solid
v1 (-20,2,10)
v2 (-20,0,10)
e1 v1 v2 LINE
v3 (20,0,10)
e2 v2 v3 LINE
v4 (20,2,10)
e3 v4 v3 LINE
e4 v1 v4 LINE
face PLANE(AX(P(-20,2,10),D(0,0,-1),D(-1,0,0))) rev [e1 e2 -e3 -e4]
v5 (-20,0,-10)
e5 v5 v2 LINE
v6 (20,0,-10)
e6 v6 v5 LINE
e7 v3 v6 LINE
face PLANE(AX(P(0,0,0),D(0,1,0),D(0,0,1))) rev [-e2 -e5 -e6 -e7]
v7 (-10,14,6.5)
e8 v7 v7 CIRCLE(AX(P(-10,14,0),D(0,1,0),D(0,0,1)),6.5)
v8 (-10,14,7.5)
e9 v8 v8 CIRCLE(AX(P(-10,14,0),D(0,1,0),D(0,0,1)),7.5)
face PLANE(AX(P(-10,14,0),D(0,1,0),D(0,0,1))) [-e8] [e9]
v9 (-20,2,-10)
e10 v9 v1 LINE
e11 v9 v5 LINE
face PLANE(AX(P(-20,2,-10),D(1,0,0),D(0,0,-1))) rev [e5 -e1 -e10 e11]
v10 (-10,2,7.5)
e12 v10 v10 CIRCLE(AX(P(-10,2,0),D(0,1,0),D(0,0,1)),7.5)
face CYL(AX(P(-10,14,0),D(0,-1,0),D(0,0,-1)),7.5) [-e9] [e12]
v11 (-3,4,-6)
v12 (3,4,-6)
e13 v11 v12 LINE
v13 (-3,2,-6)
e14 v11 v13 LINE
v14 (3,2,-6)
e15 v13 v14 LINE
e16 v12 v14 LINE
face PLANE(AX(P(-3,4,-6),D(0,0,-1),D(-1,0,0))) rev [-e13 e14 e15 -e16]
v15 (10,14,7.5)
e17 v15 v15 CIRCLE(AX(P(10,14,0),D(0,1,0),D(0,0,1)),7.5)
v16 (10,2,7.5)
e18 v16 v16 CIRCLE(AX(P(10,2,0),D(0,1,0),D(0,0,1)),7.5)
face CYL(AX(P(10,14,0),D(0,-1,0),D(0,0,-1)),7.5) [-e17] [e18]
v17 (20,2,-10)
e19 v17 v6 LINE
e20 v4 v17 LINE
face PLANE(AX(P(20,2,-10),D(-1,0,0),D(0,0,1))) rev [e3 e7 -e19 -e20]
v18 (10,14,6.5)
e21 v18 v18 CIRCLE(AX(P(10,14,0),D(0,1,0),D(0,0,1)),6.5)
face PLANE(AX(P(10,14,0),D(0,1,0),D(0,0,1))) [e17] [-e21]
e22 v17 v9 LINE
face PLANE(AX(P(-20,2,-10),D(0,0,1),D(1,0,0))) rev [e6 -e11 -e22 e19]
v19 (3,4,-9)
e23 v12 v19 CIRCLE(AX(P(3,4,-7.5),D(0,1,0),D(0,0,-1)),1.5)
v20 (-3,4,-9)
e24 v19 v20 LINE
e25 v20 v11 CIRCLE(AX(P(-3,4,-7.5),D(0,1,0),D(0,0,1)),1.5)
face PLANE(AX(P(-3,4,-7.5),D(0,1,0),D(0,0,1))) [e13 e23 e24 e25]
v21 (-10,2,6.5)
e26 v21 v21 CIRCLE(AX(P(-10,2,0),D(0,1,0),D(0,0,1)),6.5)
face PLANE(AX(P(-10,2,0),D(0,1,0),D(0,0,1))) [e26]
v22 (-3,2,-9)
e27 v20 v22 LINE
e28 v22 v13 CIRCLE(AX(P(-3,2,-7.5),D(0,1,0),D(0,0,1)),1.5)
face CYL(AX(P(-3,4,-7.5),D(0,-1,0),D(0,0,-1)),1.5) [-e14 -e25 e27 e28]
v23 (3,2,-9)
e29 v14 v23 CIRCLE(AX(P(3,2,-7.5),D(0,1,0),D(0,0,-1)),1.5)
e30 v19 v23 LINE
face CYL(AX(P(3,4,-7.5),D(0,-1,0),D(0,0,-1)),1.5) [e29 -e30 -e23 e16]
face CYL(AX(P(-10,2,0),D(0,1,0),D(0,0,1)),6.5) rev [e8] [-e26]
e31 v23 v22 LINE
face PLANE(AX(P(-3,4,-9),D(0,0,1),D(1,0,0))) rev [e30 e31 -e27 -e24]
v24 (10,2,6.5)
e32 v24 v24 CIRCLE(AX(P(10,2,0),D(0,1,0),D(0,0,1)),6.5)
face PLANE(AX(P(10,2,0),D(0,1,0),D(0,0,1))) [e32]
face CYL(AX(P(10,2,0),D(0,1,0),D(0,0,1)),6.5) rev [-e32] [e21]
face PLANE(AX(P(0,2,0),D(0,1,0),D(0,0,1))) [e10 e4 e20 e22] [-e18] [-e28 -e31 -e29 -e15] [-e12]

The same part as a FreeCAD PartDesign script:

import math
import FreeCAD as App
import Part
import Sketcher
from FreeCAD import Vector
Q = App.Units.Quantity

doc = App.newDocument("Part")
body = doc.addObject("PartDesign::Body", "Body")

sketch1 = body.newObject("Sketcher::SketchObject", "Sketch")
sketch1.AttachmentSupport = (doc.getObject("XZ_Plane"), [""])
sketch1.MapMode = "FlatFace"
sketch1.addGeometry(Part.LineSegment(Vector(-20, -10, 0), Vector(-20, 10, 0)), False)
sketch1.addGeometry(Part.LineSegment(Vector(-20, 10, 0), Vector(20, 10, 0)), False)
sketch1.addGeometry(Part.LineSegment(Vector(20, 10, 0), Vector(20, -10, 0)), False)
sketch1.addGeometry(Part.LineSegment(Vector(20, -10, 0), Vector(-20, -10, 0)), False)
sketch1.addConstraint(Sketcher.Constraint("Coincident", 0, 2, 1, 1))
sketch1.addConstraint(Sketcher.Constraint("Coincident", 1, 2, 2, 1))
sketch1.addConstraint(Sketcher.Constraint("Coincident", 2, 2, 3, 1))
sketch1.addConstraint(Sketcher.Constraint("Coincident", 3, 2, 0, 1))
sketch1.addConstraint(Sketcher.Constraint("Vertical", 0))
sketch1.addConstraint(Sketcher.Constraint("Horizontal", 1))
sketch1.addConstraint(Sketcher.Constraint("Vertical", 2))
sketch1.addConstraint(Sketcher.Constraint("Horizontal", 3))
sketch1.addConstraint(Sketcher.Constraint("Symmetric", 0, 2, 2, 2, -1, 1))
sketch1.addConstraint(Sketcher.Constraint("DistanceX", 1, 1, 1, 2, Q("40 mm")))
sketch1.addConstraint(Sketcher.Constraint("DistanceY", 0, 1, 0, 2, Q("20 mm")))
pad1 = body.newObject("PartDesign::Pad", "Pad")
pad1.Profile = sketch1
pad1.Length = 2
pad1.Reversed = True

sketch2 = body.newObject("Sketcher::SketchObject", "Sketch001")
sketch2.AttachmentSupport = (doc.getObject("XZ_Plane"), [""])
sketch2.MapMode = "FlatFace"
sketch2.AttachmentOffset = App.Placement(Vector(0, 0, -2), App.Rotation())
sketch2.addGeometry(Part.Circle(Vector(-10, 0, 0), Vector(0, 0, 1), 8), False)
sketch2.addGeometry(Part.Circle(Vector(10, 0, 0), Vector(0, 0, 1), 8), False)
sketch2.addConstraint(Sketcher.Constraint("Equal", 0, 1))
sketch2.addConstraint(Sketcher.Constraint("Symmetric", 0, 3, 1, 3, -1, 1))
sketch2.addConstraint(Sketcher.Constraint("PointOnObject", 0, 3, -1))
sketch2.addConstraint(Sketcher.Constraint("Diameter", 0, Q("15 mm")))
sketch2.addConstraint(Sketcher.Constraint("DistanceX", 0, 3, -1, 1, Q("10 mm")))
pad2 = body.newObject("PartDesign::Pad", "Pad001")
pad2.Profile = sketch2
pad2.Length = 12
pad2.Reversed = True

sketch3 = body.newObject("Sketcher::SketchObject", "Sketch002")
sketch3.AttachmentSupport = (doc.getObject("XZ_Plane"), [""])
sketch3.MapMode = "FlatFace"
sketch3.AttachmentOffset = App.Placement(Vector(0, 0, -14), App.Rotation())
sketch3.addGeometry(Part.Circle(Vector(-10, 0, 0), Vector(0, 0, 1), 6), False)
sketch3.addConstraint(Sketcher.Constraint("PointOnObject", 0, 3, -1))
sketch3.addConstraint(Sketcher.Constraint("Diameter", 0, Q("13 mm")))
sketch3.addConstraint(Sketcher.Constraint("DistanceX", 0, 3, -1, 1, Q("10 mm")))
pocket1 = body.newObject("PartDesign::Pocket", "Pocket")
pocket1.Profile = sketch3
pocket1.Length = 12
pocket1.Reversed = True

sketch4 = body.newObject("Sketcher::SketchObject", "Sketch003")
sketch4.AttachmentSupport = (doc.getObject("XZ_Plane"), [""])
sketch4.MapMode = "FlatFace"
sketch4.AttachmentOffset = App.Placement(Vector(0, 0, -14), App.Rotation())
sketch4.addGeometry(Part.Circle(Vector(10, 0, 0), Vector(0, 0, 1), 6), False)
sketch4.addConstraint(Sketcher.Constraint("PointOnObject", 0, 3, -1))
sketch4.addConstraint(Sketcher.Constraint("Diameter", 0, Q("13 mm")))
sketch4.addConstraint(Sketcher.Constraint("DistanceX", -1, 1, 0, 3, Q("10 mm")))
pocket2 = body.newObject("PartDesign::Pocket", "Pocket001")
pocket2.Profile = sketch4
pocket2.Length = 12
pocket2.Reversed = True

sketch5 = body.newObject("Sketcher::SketchObject", "Sketch004")
sketch5.AttachmentSupport = (doc.getObject("XZ_Plane"), [""])
sketch5.MapMode = "FlatFace"
sketch5.AttachmentOffset = App.Placement(Vector(0, 0, -2), App.Rotation())
sketch5.addGeometry(Part.LineSegment(Vector(3, -9, 0), Vector(-3, -9, 0)), False)
sketch5.addGeometry(Part.ArcOfCircle(Part.Circle(Vector(-3, -7.5, 0), Vector(0, 0, 1), 1.5), math.radians(90), math.radians(270)), False)
sketch5.addGeometry(Part.LineSegment(Vector(-3, -6, 0), Vector(3, -6, 0)), False)
sketch5.addGeometry(Part.ArcOfCircle(Part.Circle(Vector(3, -7.5, 0), Vector(0, 0, 1), 1.5), math.radians(-90), math.radians(90)), False)
sketch5.addConstraint(Sketcher.Constraint("Tangent", 0, 2, 1, 2))
sketch5.addConstraint(Sketcher.Constraint("Tangent", 1, 1, 2, 1))
sketch5.addConstraint(Sketcher.Constraint("Tangent", 2, 2, 3, 2))
sketch5.addConstraint(Sketcher.Constraint("Tangent", 3, 1, 0, 1))
sketch5.addConstraint(Sketcher.Constraint("Horizontal", 0))
sketch5.addConstraint(Sketcher.Constraint("Horizontal", 2))
sketch5.addConstraint(Sketcher.Constraint("Radius", 1, Q("1.5 mm")))
sketch5.addConstraint(Sketcher.Constraint("DistanceX", 0, 2, 0, 1, Q("6 mm")))
sketch5.addConstraint(Sketcher.Constraint("DistanceX", 1, 3, -1, 1, Q("3 mm")))
sketch5.addConstraint(Sketcher.Constraint("DistanceY", 0, 2, -1, 1, Q("9 mm")))
pad3 = body.newObject("PartDesign::Pad", "Pad002")
pad3.Profile = sketch5
pad3.Length = 2
pad3.Reversed = True

doc.recompute()
